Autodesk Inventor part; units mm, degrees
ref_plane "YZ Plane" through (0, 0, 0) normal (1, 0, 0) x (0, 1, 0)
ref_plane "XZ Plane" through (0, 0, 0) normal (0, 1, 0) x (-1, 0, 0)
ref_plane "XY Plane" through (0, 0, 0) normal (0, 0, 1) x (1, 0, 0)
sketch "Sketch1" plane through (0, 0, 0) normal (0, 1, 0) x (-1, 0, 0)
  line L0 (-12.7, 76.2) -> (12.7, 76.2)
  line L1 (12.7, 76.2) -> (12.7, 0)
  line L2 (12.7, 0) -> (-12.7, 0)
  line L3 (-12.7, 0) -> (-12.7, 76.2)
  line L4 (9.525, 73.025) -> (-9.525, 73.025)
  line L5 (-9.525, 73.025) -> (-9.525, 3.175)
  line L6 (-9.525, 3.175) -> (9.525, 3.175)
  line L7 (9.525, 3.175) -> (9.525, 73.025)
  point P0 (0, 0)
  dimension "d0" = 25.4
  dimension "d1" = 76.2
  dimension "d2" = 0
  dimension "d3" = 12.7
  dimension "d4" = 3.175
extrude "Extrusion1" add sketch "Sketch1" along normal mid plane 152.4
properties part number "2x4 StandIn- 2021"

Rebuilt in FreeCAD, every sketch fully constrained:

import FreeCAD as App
import Part
import Sketcher
Q = App.Units.Quantity


def add_polygon(sketch, points):
    """Adds a closed chain of lines whose ends are joined by coincident constraints."""
    first, n = sketch.GeometryCount, len(points)
    for a, b in zip(points, points[1:] + points[:1]):
        sketch.addGeometry(Part.LineSegment(App.Vector(*a, 0), App.Vector(*b, 0)), False)
    for i in range(n):
        sketch.addConstraint(Sketcher.Constraint("Coincident", first + i, 2, first + (i + 1) % n, 1))

doc = App.newDocument("Part")
body = doc.addObject("PartDesign::Body", "Body")

# Sketch on XZ plane
sketch1 = body.newObject("Sketcher::SketchObject", "Sketch")
sketch1.AttachmentSupport = (doc.getObject("XZ_Plane"), [""])
sketch1.MapMode = "FlatFace"
add_polygon(sketch1, [(-13, 76), (13, 76), (13, 0), (-13, 0)])  # lines 0-3
add_polygon(sketch1, [(10, 73), (-10, 73), (-10, 3), (10, 3)])  # lines 4-7
sketch1.addConstraint([
    Sketcher.Constraint("Horizontal", 0),
    Sketcher.Constraint("Vertical", 1),
    Sketcher.Constraint("Horizontal", 2),
    Sketcher.Constraint("Vertical", 3),
    Sketcher.Constraint("Horizontal", 4),
    Sketcher.Constraint("Vertical", 5),
    Sketcher.Constraint("Horizontal", 6),
    Sketcher.Constraint("Vertical", 7),
    Sketcher.Constraint("Symmetric", 1, 2, 2, 2, -1, 1),
    Sketcher.Constraint("DistanceX", 0, 1, 0, 2, Q("1 in")),
    Sketcher.Constraint("DistanceY", 1, 2, 1, 1, Q("3 in")),
    Sketcher.Constraint("DistanceY", -1, 1, 5, 2, Q("0.125 in")),
    Sketcher.Constraint("DistanceX", 3, 2, 4, 2, Q("0.125 in")),
    Sketcher.Constraint("DistanceY", 4, 2, 3, 2, Q("0.125 in")),
    Sketcher.Constraint("DistanceX", 6, 2, 1, 2, Q("0.125 in")),
])
pad1 = body.newObject("PartDesign::Pad", "Pad")
pad1.Profile = sketch1
pad1.Length = Q("6 in")
pad1.Midplane = True

doc.recompute()
